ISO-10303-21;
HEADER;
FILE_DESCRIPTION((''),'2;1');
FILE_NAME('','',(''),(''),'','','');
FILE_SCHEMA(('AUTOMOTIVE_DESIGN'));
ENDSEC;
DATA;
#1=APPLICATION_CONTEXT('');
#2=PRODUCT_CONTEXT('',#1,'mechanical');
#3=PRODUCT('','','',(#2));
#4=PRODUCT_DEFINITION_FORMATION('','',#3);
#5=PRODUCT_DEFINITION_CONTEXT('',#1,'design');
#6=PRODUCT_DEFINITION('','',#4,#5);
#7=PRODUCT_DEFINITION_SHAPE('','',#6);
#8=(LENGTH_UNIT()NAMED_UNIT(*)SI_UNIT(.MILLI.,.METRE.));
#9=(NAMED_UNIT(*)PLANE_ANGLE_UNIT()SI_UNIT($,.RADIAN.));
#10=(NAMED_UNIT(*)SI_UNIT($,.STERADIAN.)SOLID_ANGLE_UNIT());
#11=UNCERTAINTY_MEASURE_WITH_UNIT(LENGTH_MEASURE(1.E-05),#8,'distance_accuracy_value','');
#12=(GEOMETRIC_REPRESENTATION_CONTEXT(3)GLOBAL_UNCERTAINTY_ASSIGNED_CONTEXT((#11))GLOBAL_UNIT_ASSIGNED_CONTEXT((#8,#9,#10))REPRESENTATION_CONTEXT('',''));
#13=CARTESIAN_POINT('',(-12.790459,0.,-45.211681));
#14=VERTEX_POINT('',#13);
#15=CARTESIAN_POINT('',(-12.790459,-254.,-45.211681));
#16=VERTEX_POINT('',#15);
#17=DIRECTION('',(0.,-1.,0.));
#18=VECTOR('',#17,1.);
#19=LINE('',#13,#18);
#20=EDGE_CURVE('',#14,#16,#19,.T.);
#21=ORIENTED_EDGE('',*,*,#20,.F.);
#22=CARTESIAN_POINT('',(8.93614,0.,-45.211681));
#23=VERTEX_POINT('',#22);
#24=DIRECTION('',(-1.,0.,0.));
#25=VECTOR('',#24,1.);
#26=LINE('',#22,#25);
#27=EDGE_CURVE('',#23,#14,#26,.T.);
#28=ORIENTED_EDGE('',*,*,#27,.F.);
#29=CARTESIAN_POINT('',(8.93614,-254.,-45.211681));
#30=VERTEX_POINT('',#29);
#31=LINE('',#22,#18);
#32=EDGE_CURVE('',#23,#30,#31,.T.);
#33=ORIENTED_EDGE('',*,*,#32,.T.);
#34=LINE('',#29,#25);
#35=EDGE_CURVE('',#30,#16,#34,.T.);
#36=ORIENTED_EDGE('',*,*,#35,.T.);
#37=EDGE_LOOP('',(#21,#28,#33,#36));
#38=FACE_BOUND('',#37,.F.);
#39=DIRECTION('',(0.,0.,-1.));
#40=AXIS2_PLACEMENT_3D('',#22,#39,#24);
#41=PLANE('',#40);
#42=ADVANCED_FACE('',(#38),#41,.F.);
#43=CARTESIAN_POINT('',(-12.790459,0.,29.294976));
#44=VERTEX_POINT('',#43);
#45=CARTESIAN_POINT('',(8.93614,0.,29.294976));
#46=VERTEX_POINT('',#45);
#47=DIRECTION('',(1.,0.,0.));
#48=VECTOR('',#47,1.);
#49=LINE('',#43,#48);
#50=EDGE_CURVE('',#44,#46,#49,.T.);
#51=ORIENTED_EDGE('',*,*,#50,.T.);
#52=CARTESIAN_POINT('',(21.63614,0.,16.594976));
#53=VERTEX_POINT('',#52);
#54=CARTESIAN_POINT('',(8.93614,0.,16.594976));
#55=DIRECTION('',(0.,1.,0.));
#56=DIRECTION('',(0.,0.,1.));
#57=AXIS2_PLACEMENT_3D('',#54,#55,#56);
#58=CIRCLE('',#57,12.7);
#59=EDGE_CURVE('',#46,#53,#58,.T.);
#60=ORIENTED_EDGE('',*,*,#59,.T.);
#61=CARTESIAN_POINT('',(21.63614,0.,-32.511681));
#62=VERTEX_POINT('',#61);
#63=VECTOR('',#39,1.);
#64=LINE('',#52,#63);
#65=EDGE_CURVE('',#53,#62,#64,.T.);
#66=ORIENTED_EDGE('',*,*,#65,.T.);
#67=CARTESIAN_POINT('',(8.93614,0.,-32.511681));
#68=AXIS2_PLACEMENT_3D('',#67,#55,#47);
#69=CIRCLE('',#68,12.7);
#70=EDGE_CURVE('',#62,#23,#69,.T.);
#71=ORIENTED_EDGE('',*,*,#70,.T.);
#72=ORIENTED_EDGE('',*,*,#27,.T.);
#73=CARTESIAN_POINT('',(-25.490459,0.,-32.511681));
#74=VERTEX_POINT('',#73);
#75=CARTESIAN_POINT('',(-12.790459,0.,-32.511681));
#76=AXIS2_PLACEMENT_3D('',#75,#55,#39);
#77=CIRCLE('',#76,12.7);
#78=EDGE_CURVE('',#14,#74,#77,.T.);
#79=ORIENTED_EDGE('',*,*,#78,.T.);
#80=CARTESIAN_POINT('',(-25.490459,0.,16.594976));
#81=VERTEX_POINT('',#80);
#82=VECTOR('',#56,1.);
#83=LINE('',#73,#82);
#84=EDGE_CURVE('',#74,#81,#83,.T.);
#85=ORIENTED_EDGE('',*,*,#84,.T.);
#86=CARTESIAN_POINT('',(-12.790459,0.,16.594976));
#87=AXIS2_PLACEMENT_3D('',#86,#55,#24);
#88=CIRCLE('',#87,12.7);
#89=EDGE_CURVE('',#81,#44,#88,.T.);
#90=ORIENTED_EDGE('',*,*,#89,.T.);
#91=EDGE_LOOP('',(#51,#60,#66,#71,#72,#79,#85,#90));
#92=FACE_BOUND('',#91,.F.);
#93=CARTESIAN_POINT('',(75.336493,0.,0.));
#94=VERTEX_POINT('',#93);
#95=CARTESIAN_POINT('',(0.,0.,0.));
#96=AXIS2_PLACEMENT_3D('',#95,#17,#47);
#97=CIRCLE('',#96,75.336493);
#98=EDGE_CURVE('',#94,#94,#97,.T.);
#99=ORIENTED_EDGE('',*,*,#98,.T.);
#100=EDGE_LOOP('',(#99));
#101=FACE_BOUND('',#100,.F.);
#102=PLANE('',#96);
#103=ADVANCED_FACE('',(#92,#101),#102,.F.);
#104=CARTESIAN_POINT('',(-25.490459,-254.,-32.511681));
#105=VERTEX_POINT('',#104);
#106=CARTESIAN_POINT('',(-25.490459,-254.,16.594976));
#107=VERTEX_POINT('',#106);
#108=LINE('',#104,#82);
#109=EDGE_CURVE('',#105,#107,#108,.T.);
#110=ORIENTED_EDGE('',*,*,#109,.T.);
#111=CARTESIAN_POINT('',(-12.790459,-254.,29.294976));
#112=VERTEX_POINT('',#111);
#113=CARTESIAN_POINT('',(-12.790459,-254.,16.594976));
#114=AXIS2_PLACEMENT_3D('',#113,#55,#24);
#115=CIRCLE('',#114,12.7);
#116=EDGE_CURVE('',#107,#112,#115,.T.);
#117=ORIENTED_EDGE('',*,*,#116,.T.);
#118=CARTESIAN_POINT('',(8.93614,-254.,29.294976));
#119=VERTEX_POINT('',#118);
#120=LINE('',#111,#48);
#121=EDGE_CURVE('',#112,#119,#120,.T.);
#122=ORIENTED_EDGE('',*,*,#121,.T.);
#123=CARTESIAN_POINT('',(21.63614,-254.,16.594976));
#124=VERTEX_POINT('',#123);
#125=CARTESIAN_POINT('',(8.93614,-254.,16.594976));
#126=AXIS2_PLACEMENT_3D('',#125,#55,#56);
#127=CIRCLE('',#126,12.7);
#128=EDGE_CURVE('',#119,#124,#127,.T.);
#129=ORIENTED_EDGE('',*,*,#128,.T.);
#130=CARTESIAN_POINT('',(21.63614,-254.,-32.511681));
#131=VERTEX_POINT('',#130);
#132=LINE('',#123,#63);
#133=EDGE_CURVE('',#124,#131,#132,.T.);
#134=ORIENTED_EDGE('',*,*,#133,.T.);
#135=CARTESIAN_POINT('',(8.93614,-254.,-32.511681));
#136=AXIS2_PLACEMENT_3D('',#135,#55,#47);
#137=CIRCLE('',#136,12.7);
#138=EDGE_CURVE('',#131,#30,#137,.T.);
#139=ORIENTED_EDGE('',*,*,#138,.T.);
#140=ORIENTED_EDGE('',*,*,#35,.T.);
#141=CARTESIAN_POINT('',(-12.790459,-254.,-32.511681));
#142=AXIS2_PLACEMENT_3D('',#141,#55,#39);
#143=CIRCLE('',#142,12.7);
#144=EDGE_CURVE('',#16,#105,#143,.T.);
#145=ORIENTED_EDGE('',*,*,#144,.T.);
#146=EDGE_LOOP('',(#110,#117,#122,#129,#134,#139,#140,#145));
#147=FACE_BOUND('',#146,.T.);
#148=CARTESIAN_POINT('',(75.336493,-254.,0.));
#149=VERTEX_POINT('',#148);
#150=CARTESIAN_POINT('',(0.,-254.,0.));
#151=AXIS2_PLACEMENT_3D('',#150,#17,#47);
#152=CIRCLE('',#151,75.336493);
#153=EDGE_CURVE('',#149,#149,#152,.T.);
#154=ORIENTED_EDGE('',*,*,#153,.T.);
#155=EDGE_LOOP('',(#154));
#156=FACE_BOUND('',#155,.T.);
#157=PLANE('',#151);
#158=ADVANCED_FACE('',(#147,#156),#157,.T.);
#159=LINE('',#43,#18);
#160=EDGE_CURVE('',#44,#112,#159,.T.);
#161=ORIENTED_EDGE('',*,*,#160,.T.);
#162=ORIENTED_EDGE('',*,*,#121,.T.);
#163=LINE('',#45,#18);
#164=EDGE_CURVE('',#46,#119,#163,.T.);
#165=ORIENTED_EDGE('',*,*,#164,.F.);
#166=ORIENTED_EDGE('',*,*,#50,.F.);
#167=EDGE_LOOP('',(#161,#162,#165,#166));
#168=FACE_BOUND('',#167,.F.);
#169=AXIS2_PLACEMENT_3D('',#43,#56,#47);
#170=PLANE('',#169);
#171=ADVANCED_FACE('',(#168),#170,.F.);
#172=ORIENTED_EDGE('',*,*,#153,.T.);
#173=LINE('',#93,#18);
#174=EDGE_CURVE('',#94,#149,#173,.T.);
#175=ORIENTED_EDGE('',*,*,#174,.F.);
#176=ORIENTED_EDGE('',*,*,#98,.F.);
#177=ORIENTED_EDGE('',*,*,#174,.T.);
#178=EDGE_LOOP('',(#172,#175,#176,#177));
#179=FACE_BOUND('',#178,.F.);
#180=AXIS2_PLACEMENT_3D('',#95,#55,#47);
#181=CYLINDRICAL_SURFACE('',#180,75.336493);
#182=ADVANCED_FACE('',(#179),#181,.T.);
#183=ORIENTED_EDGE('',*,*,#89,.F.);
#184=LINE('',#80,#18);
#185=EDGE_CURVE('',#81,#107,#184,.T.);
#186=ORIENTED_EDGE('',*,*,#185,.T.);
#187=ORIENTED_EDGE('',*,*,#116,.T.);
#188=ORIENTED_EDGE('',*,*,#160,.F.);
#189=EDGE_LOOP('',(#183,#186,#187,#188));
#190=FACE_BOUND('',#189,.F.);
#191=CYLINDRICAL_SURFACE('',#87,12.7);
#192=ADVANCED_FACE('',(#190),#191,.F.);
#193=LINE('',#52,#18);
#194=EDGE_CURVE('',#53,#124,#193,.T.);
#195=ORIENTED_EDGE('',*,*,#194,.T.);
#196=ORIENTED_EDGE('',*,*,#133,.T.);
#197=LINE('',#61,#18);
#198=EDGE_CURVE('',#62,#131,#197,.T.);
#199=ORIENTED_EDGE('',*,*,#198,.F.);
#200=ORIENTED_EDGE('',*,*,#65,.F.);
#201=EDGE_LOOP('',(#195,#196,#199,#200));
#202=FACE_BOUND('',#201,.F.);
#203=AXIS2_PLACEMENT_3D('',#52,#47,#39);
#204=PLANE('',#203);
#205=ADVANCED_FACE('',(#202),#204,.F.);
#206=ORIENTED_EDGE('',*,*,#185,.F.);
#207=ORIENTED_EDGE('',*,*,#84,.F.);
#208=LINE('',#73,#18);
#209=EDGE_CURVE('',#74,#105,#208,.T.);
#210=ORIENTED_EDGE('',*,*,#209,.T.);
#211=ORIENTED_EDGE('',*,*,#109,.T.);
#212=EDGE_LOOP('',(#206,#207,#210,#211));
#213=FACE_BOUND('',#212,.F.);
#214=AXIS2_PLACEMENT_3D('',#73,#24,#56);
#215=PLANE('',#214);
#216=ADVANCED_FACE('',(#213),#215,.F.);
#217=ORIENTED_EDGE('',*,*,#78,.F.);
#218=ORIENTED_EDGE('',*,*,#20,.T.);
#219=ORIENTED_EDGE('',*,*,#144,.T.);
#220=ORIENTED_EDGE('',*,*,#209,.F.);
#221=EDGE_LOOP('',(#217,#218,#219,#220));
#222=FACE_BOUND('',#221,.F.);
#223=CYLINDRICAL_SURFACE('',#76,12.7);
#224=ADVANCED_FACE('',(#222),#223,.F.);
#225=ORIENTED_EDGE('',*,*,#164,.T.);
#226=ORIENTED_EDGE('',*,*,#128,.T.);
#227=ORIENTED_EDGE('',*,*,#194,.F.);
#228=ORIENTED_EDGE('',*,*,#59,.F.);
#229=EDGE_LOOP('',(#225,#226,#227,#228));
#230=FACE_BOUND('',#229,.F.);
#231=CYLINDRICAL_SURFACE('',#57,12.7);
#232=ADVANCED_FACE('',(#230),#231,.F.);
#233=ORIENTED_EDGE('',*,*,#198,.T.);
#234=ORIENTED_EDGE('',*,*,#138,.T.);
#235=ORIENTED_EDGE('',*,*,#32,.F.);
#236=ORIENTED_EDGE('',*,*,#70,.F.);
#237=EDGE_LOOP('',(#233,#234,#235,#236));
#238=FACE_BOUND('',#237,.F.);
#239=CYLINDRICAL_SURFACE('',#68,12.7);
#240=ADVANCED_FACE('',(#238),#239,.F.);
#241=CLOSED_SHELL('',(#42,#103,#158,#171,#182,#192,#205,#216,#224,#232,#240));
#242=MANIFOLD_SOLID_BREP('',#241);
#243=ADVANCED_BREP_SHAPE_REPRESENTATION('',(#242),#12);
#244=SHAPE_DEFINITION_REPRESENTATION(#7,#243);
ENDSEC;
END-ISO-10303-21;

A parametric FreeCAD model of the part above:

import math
import FreeCAD as App
import Part
import Sketcher

V = App.Vector
Q = App.Units.Quantity

doc = App.newDocument("Part")
body = doc.addObject("PartDesign::Body", "Body")

# Sketch on XZ plane
sketch1 = doc.addObject("Sketcher::SketchObject", "Sketch")
body.addObject(sketch1)
sketch1.AttachmentSupport = (doc.XZ_Plane, [""])
sketch1.MapMode = "FlatFace"
sketch1.addGeometry(Part.Circle(V(0, 0, 0), V(0, 0, 1), 75.336493), False)
sketch1.addGeometry(Part.ArcOfCircle(Part.Circle(V(-12.790459, 16.594976, 0), V(0, 0, 1), 12.7), math.radians(90), math.radians(180)), False)
sketch1.addGeometry(Part.LineSegment(V(-12.790459, 29.294976, 0), V(8.93614, 29.294976, 0)), False)
sketch1.addGeometry(Part.ArcOfCircle(Part.Circle(V(8.93614, 16.594976, 0), V(0, 0, 1), 12.7), math.radians(0), math.radians(90)), False)
sketch1.addGeometry(Part.LineSegment(V(21.63614, 16.594976, 0), V(21.63614, -32.511681, 0)), False)
sketch1.addGeometry(Part.ArcOfCircle(Part.Circle(V(8.93614, -32.511681, 0), V(0, 0, 1), 12.7), math.radians(-90), math.radians(0)), False)
sketch1.addGeometry(Part.LineSegment(V(8.93614, -45.211681, 0), V(-12.790459, -45.211681, 0)), False)
sketch1.addGeometry(Part.ArcOfCircle(Part.Circle(V(-12.790459, -32.511681, 0), V(0, 0, 1), 12.7), math.radians(180), math.radians(270)), False)
sketch1.addGeometry(Part.LineSegment(V(-25.490459, -32.511681, 0), V(-25.490459, 16.594976, 0)), False)
sketch1.addConstraint(Sketcher.Constraint("Tangent", 1, 1, 2, 1))
sketch1.addConstraint(Sketcher.Constraint("Tangent", 2, 2, 3, 2))
sketch1.addConstraint(Sketcher.Constraint("Tangent", 3, 1, 4, 1))
sketch1.addConstraint(Sketcher.Constraint("Tangent", 4, 2, 5, 2))
sketch1.addConstraint(Sketcher.Constraint("Tangent", 5, 1, 6, 1))
sketch1.addConstraint(Sketcher.Constraint("Tangent", 6, 2, 7, 2))
sketch1.addConstraint(Sketcher.Constraint("Tangent", 7, 1, 8, 1))
sketch1.addConstraint(Sketcher.Constraint("Tangent", 8, 2, 1, 2))
sketch1.addConstraint(Sketcher.Constraint("Horizontal", 2))
sketch1.addConstraint(Sketcher.Constraint("Vertical", 4))
sketch1.addConstraint(Sketcher.Constraint("Horizontal", 6))
sketch1.addConstraint(Sketcher.Constraint("Vertical", 8))
sketch1.addConstraint(Sketcher.Constraint("Coincident", 0, 3, -1, 1))
sketch1.addConstraint(Sketcher.Constraint("Equal", 1, 3))
sketch1.addConstraint(Sketcher.Constraint("Equal", 3, 5))
sketch1.addConstraint(Sketcher.Constraint("Equal", 5, 7))
sketch1.addConstraint(Sketcher.Constraint("Radius", 1, Q("0.5 in")))
sketch1.addConstraint(Sketcher.Constraint("Diameter", 0, 150.672986))
sketch1.addConstraint(Sketcher.Constraint("DistanceX", 2, 1, 2, 2, 21.726599))
sketch1.addConstraint(Sketcher.Constraint("DistanceY", 4, 2, 4, 1, 49.106657))
sketch1.addConstraint(Sketcher.Constraint("DistanceX", 1, 3, -1, 1, 12.790459))
sketch1.addConstraint(Sketcher.Constraint("DistanceY", 5, 3, -1, 1, 32.511681))
pad1 = doc.addObject("PartDesign::Pad", "Pad")
body.addObject(pad1)
pad1.Profile = sketch1
pad1.Length = Q("10 in")

doc.recompute()
